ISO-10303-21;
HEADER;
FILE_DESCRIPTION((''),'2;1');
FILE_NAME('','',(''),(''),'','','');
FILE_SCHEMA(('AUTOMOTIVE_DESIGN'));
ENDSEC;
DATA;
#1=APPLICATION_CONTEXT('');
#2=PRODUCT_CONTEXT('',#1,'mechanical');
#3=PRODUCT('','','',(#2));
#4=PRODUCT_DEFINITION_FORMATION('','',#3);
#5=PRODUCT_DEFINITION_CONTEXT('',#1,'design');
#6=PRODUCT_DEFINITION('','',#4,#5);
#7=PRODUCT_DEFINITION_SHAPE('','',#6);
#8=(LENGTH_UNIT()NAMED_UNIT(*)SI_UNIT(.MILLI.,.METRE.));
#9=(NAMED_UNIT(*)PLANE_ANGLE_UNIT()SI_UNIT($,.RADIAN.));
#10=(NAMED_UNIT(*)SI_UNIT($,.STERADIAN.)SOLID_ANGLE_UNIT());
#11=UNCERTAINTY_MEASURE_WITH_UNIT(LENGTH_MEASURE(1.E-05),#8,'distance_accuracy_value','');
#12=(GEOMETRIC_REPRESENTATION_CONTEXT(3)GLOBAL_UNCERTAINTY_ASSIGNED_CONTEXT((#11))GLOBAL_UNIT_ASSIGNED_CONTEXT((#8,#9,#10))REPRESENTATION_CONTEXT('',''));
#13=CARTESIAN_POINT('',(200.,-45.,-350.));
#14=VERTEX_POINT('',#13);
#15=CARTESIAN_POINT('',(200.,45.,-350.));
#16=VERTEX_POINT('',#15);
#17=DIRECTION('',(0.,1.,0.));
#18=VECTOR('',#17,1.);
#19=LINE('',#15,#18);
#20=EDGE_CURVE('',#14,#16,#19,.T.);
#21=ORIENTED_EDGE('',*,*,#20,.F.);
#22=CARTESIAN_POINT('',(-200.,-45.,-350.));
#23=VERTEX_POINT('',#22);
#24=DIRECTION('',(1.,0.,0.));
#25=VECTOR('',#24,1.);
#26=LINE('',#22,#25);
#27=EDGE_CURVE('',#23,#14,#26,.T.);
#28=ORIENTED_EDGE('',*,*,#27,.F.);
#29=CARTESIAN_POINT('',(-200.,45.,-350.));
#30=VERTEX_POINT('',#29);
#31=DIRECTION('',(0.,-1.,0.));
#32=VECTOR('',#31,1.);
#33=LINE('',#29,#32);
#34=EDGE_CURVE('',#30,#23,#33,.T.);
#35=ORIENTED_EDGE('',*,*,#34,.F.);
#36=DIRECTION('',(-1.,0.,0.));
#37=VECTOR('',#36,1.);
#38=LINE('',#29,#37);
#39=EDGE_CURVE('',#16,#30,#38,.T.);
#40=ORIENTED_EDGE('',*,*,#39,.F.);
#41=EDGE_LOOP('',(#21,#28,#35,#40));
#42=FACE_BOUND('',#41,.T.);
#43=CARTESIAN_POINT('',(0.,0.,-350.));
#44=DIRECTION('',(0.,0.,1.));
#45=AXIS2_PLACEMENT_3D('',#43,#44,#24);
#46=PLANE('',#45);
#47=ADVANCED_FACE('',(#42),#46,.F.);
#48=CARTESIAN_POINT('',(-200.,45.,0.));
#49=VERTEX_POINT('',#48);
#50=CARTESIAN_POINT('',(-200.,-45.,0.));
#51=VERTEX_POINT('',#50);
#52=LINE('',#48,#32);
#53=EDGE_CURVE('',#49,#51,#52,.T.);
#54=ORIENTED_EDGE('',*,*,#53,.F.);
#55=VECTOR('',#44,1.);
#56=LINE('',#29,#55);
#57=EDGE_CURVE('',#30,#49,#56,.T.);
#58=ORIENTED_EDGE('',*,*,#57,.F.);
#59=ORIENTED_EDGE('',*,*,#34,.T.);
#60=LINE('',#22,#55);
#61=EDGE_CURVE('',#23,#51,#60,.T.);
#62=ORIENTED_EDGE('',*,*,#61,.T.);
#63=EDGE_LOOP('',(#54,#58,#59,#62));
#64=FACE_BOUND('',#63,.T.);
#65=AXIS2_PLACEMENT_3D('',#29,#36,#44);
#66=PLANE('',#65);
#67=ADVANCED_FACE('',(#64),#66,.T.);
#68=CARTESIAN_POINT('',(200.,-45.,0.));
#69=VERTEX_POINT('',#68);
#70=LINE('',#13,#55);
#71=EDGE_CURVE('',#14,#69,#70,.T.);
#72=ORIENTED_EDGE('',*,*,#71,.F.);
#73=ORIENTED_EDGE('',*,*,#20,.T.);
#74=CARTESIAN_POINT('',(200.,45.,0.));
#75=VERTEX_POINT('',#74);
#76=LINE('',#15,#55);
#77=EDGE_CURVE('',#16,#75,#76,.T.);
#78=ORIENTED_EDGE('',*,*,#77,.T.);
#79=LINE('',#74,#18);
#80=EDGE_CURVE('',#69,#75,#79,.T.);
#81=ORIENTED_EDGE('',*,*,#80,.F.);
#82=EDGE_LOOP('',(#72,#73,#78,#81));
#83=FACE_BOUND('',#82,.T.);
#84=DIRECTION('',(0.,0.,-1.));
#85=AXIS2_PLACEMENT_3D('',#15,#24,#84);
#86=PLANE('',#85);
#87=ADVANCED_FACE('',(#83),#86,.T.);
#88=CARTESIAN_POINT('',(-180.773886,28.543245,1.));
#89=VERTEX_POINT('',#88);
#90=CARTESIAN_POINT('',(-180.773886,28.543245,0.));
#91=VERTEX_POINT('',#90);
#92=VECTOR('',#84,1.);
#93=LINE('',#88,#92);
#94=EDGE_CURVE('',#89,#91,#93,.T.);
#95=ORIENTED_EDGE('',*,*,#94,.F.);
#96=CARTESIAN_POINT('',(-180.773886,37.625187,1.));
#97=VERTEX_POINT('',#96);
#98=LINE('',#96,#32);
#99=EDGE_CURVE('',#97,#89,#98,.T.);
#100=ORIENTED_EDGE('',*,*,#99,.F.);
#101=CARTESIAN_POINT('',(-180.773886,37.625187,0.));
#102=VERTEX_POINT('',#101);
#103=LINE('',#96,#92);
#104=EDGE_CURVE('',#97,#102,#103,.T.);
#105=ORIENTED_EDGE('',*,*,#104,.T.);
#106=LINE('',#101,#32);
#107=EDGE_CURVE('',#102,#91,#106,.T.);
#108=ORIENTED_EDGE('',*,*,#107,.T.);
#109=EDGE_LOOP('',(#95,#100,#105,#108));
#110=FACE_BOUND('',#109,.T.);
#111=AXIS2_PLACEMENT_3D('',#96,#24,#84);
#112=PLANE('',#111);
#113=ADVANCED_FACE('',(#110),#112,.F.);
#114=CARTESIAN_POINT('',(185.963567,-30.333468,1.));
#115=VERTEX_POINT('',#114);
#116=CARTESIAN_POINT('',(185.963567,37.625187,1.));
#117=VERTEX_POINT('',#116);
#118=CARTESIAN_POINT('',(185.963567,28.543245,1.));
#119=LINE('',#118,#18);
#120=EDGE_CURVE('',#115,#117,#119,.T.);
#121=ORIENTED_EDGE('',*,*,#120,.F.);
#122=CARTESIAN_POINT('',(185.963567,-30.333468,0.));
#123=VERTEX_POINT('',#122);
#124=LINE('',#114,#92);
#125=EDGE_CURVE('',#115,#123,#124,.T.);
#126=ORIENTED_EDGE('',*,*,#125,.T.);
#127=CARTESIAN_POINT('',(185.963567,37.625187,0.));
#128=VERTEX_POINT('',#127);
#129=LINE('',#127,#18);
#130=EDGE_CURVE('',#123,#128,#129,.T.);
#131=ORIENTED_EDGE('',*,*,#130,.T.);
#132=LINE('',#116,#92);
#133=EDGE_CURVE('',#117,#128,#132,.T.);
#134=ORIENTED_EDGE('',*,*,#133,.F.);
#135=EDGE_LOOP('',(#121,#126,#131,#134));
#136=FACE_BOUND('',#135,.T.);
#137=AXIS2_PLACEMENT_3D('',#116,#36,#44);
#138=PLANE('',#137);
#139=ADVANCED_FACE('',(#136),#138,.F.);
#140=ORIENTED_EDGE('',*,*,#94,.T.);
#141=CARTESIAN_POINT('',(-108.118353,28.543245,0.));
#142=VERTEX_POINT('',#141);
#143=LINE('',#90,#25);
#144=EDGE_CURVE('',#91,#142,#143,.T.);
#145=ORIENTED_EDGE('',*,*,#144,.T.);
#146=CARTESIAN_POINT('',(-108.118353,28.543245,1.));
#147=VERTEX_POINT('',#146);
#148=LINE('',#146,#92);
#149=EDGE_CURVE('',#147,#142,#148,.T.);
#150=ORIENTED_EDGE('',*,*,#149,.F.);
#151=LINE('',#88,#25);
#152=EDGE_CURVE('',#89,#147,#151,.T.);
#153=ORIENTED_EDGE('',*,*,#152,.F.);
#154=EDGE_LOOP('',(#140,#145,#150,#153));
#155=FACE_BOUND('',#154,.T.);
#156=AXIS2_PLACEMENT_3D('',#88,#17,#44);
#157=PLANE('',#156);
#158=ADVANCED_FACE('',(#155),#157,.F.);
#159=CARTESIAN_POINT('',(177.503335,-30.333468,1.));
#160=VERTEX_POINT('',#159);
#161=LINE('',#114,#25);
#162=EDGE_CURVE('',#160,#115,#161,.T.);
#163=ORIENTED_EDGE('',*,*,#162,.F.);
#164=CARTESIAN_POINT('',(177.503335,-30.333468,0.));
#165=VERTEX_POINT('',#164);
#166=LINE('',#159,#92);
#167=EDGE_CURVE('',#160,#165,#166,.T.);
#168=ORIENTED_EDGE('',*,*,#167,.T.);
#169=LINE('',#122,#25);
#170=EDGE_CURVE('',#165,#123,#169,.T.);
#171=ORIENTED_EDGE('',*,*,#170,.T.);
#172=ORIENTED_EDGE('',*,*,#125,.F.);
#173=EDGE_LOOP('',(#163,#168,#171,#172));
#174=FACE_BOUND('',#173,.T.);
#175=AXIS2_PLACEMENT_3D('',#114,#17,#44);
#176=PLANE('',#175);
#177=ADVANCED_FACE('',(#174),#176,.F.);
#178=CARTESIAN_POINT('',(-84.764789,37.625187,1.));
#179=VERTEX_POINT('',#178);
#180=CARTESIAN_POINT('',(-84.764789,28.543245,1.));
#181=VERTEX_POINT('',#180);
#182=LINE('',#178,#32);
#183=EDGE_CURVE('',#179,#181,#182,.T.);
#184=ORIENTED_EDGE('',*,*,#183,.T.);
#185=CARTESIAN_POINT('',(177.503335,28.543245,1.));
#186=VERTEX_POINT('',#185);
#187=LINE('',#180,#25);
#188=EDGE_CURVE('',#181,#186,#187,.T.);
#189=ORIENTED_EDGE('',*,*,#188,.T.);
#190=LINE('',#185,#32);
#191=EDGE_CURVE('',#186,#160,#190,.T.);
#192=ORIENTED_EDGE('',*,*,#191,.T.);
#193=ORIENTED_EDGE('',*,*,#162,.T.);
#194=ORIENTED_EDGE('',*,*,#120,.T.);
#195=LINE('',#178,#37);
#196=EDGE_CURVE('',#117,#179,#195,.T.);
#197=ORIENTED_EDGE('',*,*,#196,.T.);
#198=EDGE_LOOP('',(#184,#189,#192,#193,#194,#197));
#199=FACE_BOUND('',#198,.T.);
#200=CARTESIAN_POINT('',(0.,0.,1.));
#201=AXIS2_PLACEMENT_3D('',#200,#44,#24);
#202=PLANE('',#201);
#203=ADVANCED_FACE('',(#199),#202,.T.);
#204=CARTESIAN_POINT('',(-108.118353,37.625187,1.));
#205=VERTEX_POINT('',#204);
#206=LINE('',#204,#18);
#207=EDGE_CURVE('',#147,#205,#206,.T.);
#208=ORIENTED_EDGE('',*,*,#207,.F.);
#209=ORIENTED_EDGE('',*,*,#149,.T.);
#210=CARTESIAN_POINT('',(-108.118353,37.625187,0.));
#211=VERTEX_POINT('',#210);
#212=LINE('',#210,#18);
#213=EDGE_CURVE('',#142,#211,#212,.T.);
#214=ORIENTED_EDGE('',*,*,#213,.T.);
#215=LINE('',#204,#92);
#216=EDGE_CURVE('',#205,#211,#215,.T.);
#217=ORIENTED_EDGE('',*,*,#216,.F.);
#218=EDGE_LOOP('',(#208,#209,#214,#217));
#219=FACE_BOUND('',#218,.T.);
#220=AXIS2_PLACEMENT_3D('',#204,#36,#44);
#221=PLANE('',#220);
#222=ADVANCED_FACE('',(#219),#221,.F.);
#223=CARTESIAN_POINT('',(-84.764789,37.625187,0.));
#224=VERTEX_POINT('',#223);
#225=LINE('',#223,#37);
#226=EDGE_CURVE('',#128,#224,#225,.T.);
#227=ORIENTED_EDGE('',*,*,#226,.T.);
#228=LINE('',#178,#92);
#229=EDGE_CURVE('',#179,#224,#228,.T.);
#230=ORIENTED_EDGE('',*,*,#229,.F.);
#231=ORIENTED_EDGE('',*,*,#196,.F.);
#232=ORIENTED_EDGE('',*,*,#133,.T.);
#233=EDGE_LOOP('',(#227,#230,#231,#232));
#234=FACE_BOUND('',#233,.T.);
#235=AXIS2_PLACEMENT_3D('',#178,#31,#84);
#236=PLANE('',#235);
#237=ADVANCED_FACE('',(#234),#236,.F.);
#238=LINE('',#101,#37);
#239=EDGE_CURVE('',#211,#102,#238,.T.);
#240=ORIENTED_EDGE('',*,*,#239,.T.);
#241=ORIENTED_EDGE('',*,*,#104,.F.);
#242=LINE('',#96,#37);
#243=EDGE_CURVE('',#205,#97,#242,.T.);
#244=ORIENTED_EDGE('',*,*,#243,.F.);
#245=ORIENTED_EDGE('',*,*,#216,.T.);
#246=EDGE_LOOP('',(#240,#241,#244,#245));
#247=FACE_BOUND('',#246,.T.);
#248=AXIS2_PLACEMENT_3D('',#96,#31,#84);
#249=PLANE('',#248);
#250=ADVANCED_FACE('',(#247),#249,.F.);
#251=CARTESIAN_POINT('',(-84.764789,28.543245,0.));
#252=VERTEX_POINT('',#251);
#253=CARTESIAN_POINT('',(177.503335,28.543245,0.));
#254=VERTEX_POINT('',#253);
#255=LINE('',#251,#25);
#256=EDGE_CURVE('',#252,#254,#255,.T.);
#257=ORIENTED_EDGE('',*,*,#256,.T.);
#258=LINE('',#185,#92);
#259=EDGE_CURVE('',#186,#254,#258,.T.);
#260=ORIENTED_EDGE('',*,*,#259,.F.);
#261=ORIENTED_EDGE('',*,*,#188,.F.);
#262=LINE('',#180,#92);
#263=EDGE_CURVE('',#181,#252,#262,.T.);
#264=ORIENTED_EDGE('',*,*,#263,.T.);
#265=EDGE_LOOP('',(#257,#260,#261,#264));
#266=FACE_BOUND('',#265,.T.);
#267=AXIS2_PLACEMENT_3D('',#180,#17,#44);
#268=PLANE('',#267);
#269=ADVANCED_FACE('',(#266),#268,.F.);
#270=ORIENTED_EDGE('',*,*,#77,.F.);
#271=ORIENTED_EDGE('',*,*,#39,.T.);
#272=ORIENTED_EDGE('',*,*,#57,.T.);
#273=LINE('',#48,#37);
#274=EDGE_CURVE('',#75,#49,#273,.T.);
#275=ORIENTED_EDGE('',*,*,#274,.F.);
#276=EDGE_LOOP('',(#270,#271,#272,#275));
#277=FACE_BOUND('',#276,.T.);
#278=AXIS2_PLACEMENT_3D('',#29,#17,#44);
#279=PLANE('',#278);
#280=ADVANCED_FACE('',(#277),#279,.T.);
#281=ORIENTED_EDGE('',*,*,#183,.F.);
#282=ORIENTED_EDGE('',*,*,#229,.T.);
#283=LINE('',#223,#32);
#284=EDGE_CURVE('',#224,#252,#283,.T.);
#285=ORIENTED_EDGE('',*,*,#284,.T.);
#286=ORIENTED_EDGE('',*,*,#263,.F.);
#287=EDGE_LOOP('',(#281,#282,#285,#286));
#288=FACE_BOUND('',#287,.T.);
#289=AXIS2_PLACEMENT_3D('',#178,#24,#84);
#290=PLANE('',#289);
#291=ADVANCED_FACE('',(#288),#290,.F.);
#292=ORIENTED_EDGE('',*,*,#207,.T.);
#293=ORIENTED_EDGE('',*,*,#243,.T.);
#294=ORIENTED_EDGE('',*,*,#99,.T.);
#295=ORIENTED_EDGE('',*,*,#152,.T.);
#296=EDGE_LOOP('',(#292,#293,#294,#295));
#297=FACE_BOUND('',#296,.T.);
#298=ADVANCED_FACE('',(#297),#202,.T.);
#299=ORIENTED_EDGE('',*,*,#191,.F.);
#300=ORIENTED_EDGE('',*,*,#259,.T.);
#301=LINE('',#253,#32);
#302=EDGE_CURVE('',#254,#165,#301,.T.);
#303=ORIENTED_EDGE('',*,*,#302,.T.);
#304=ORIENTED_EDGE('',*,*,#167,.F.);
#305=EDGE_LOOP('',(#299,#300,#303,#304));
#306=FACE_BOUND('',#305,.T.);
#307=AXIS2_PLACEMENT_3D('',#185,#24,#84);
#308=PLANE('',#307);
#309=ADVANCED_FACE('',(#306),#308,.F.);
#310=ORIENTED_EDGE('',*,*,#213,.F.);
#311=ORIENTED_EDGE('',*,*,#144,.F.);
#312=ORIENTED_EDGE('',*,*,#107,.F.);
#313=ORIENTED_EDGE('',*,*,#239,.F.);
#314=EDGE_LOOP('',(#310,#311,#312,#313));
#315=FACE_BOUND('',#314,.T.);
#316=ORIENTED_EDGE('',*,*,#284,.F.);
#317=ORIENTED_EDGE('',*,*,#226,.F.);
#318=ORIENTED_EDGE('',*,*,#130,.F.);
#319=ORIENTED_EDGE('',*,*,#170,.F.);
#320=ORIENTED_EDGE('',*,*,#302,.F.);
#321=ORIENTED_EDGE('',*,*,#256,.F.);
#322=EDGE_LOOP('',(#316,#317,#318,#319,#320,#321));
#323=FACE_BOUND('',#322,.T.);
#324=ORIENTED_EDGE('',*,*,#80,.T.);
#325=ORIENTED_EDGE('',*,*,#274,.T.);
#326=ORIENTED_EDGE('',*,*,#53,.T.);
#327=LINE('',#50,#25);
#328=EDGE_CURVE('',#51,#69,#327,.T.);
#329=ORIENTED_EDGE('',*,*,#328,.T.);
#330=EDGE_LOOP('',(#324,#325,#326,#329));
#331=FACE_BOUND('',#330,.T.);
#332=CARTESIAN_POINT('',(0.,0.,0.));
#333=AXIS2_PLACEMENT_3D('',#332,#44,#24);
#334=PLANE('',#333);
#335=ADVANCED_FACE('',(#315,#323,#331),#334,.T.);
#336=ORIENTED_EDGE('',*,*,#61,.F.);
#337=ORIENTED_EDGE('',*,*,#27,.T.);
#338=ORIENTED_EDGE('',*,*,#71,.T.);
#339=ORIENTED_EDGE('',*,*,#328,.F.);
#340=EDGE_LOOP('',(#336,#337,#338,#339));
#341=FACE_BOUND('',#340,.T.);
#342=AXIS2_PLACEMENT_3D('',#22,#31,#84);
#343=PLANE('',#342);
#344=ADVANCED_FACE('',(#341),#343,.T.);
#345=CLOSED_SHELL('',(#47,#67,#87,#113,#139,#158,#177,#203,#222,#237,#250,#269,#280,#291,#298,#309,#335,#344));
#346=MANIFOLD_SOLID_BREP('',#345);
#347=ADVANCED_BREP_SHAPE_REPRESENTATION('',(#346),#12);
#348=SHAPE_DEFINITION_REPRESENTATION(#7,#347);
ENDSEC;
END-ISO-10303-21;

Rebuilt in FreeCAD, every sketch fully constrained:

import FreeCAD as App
import Part
import Sketcher

V = App.Vector


def add_polygon(sketch, points):
    """Adds a closed chain of lines whose ends are joined by coincident constraints."""
    first, n = sketch.GeometryCount, len(points)
    for a, b in zip(points, points[1:] + points[:1]):
        sketch.addGeometry(Part.LineSegment(App.Vector(*a, 0), App.Vector(*b, 0)), False)
    for i in range(n):
        sketch.addConstraint(Sketcher.Constraint("Coincident", first + i, 2, first + (i + 1) % n, 1))

doc = App.newDocument("Part")
body = doc.addObject("PartDesign::Body", "Body")

sketch1 = doc.addObject("Sketcher::SketchObject", "Sketch")
body.addObject(sketch1)
sketch1.AttachmentSupport = (doc.XY_Plane, [""])
sketch1.MapMode = "FlatFace"
add_polygon(sketch1, [(-200, 45), (-200, -45), (200, -45), (200, 45)])
sketch1.addConstraint([
    Sketcher.Constraint("Vertical", 0),
    Sketcher.Constraint("Horizontal", 1),
    Sketcher.Constraint("Vertical", 2),
    Sketcher.Constraint("Horizontal", 3),
    Sketcher.Constraint("Symmetric", 0, 2, 2, 2, -1, 1),
    Sketcher.Constraint("DistanceX", 1, 1, 1, 2, 400.0),
    Sketcher.Constraint("DistanceY", 0, 2, 0, 1, 90.0),
])
pad1 = doc.addObject("PartDesign::Pad", "Pad")
body.addObject(pad1)
pad1.Profile = sketch1
pad1.Length = 350
pad1.Reversed = True

sketch2 = doc.addObject("Sketcher::SketchObject", "Sketch001")
body.addObject(sketch2)
sketch2.AttachmentSupport = (doc.XY_Plane, [""])
sketch2.MapMode = "FlatFace"
add_polygon(sketch2, [(-181, 38), (-181, 29), (-108, 29), (-108, 38)])
add_polygon(sketch2, [(186, 38), (-85, 38), (-85, 29), (178, 29), (178, -30), (186, -30)])
sketch2.addConstraint([
    Sketcher.Constraint("Vertical", 0),
    Sketcher.Constraint("Horizontal", 1),
    Sketcher.Constraint("Vertical", 2),
    Sketcher.Constraint("Horizontal", 3),
    Sketcher.Constraint("Horizontal", 4),
    Sketcher.Constraint("Vertical", 5),
    Sketcher.Constraint("Horizontal", 6),
    Sketcher.Constraint("Vertical", 7),
    Sketcher.Constraint("Horizontal", 8),
    Sketcher.Constraint("Vertical", 9),
    Sketcher.Constraint("Horizontal", 3, 2, 4, 2),
    Sketcher.Constraint("Horizontal", 1, 2, 5, 2),
    Sketcher.Constraint("DistanceY", 0, 2, 0, 1, 9.081942),
    Sketcher.Constraint("DistanceX", 1, 1, 1, 2, 72.655533),
    Sketcher.Constraint("DistanceX", 4, 2, 4, 1, 270.728355),
    Sketcher.Constraint("DistanceX", 6, 1, 6, 2, 262.268123),
    Sketcher.Constraint("DistanceY", 7, 2, 7, 1, 58.876713),
    Sketcher.Constraint("DistanceX", 4, 2, -1, 1, 84.764789),
    Sketcher.Constraint("DistanceY", 7, 2, -1, 1, 30.333468),
    Sketcher.Constraint("DistanceX", 0, 2, 6, 2, 358.27722),
])
pad2 = doc.addObject("PartDesign::Pad", "Pad001")
body.addObject(pad2)
pad2.Profile = sketch2
pad2.Length = 1

doc.recompute()
